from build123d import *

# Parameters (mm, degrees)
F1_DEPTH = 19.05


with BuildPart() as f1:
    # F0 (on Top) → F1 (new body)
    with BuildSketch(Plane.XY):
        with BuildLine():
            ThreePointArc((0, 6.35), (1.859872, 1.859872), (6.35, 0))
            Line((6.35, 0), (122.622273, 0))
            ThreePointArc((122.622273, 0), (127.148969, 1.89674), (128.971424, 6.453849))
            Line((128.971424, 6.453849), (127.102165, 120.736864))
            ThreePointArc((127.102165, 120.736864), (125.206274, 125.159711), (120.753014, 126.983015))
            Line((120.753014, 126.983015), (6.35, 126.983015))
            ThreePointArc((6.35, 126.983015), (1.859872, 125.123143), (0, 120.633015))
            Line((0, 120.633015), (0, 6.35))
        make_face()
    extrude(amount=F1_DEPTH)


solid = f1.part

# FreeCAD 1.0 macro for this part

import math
import FreeCAD as App
import Part
import Sketcher
from FreeCAD import Vector
Q = App.Units.Quantity

doc = App.newDocument("Part")
params = doc.addObject("Spreadsheet::Sheet", "Params")
for row, (alias, value) in enumerate([
    ("sketch1_radius", "0.25 in"),
    ("pad1_length", "0.75 in"),
], start=1):
    params.set(f"A{row}", alias)
    params.set(f"B{row}", "=" + value)
    params.setAlias(f"B{row}", alias)

body = doc.addObject("PartDesign::Body", "Body")

# Sketch on XY plane
sketch1 = body.newObject("Sketcher::SketchObject", "Sketch")
sketch1.AttachmentSupport = (doc.getObject("XY_Plane"), [""])
sketch1.MapMode = "FlatFace"
sketch1.addGeometry([
    Part.ArcOfCircle(Part.Circle(Vector(6, 6, 0), Vector(0, 0, 1), 6), math.radians(-180), math.radians(-90)),  # 0
    Part.LineSegment(Vector(6, 0, 0), Vector(123, 0, 0)),  # 1
    Part.ArcOfCircle(Part.Circle(Vector(123, 6, 0), Vector(0, 0, 1), 6), math.radians(-90), math.radians(1)),  # 2
    Part.LineSegment(Vector(129, 6, 0), Vector(127, 121, 0)),  # 3
    Part.ArcOfCircle(Part.Circle(Vector(121, 121, 0), Vector(0, 0, 1), 6), math.radians(1), math.radians(90)),  # 4
    Part.LineSegment(Vector(121, 127, 0), Vector(6, 127, 0)),  # 5
    Part.ArcOfCircle(Part.Circle(Vector(6, 121, 0), Vector(0, 0, 1), 6), math.radians(90), math.radians(180)),  # 6
    Part.LineSegment(Vector(0, 121, 0), Vector(0, 6, 0)),  # 7
], False)
sketch1.addConstraint([
    Sketcher.Constraint("Tangent", 0, 2, 1, 1),
    Sketcher.Constraint("Tangent", 1, 2, 2, 1),
    Sketcher.Constraint("Tangent", 2, 2, 3, 1),
    Sketcher.Constraint("Tangent", 3, 2, 4, 1),
    Sketcher.Constraint("Tangent", 4, 2, 5, 1),
    Sketcher.Constraint("Tangent", 5, 2, 6, 1),
    Sketcher.Constraint("Tangent", 6, 2, 7, 1),
    Sketcher.Constraint("Tangent", 7, 2, 0, 1),
    Sketcher.Constraint("Horizontal", 1),
    Sketcher.Constraint("Horizontal", 5),
    Sketcher.Constraint("Vertical", 7),
    Sketcher.Constraint("Equal", 0, 2),
    Sketcher.Constraint("Equal", 2, 4),
    Sketcher.Constraint("Equal", 4, 6),
    Sketcher.Constraint("PointOnObject", 0, 2, -1),
    Sketcher.Constraint("PointOnObject", 6, 2, -2),
    Sketcher.Constraint("Radius", 0, Q("0.25 in")),
    Sketcher.Constraint("Distance", 3, Q("114.298301 mm")),
    Sketcher.Constraint("DistanceX", 1, 1, 1, 2, Q("116.272273 mm")),
    Sketcher.Constraint("DistanceX", 5, 2, 5, 1, Q("114.403014 mm")),
])
sketch1.setExpression("Constraints[16]", "Params.sketch1_radius")
pad1 = body.newObject("PartDesign::Pad", "Pad")
pad1.Profile = sketch1
pad1.setExpression("Length", "Params.pad1_length")

doc.recompute()
